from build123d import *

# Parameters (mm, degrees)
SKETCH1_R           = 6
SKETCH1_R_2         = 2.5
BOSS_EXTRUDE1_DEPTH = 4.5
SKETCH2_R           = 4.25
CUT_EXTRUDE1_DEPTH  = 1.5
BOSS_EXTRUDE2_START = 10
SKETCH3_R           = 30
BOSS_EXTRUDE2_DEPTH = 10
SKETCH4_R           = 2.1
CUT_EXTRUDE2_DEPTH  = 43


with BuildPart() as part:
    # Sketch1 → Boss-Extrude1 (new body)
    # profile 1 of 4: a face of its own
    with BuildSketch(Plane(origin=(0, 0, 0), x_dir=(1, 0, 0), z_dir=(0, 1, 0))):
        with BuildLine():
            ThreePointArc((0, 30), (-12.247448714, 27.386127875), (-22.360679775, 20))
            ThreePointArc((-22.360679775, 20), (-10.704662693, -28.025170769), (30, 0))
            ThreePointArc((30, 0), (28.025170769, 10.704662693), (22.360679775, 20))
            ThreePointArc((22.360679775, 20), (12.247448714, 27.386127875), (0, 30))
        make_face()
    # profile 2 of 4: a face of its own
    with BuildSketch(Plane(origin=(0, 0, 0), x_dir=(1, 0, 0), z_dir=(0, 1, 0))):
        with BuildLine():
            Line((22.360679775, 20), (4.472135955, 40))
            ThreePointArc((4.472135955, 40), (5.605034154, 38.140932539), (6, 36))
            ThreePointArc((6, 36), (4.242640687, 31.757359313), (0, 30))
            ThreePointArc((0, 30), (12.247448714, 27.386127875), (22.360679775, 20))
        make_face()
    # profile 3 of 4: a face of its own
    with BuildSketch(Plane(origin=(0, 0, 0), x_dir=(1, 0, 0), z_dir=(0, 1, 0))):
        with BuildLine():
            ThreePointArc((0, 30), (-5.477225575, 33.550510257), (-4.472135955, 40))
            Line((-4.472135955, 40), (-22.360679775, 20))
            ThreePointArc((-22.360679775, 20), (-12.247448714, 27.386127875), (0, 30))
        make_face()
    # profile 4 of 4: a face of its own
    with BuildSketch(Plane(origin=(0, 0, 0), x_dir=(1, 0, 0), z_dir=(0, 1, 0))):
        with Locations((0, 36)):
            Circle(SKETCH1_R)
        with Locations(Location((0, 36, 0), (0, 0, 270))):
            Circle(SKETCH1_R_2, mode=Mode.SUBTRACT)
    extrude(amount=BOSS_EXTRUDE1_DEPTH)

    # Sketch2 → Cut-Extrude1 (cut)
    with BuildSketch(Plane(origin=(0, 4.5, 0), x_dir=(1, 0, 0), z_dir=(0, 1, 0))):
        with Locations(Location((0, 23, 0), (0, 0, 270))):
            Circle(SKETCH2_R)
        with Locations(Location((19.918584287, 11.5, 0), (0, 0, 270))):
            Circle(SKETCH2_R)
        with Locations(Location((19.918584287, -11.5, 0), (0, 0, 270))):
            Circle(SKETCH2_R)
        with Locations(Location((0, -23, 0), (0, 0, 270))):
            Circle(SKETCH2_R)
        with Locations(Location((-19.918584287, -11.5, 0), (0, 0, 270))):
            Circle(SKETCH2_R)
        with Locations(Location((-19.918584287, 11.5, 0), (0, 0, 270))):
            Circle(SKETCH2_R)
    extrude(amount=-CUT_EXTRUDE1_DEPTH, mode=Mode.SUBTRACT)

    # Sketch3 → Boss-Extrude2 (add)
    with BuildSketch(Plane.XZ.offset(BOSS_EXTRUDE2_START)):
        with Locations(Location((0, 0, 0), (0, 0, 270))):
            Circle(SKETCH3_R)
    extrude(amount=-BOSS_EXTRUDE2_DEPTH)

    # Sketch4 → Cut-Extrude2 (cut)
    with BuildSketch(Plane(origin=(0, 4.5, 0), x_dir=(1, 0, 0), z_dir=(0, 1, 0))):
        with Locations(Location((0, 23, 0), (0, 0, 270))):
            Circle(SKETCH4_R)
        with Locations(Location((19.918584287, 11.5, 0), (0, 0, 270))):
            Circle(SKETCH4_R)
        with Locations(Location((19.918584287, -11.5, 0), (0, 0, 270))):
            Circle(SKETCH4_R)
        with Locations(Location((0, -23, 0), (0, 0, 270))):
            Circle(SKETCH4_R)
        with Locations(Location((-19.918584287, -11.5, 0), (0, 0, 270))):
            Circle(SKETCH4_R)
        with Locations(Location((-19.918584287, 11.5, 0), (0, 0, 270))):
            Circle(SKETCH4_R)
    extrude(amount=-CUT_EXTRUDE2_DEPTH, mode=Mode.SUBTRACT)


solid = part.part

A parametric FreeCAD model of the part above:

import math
import FreeCAD as App
import Part
import Sketcher

V = App.Vector

doc = App.newDocument("Part")
params = doc.addObject("Spreadsheet::Sheet", "Params")
for row, (alias, value) in enumerate([
    ("sketch1_diameter", "5 mm"),
    ("sketch1_radius", "30 mm"),
    ("sketch1_radius2", "6 mm"),
    ("pad1_length", "4.5 mm"),
    ("sketch2_diameter", "8.5 mm"),
    ("pocket1_length", "1.5 mm"),
    ("sketch3_diameter", "60 mm"),
    ("pad2_length", "10 mm"),
    ("sketch4_diameter", "4.2 mm"),
    ("pocket2_length", "43 mm"),
], start=1):
    params.set(f"A{row}", alias)
    params.set(f"B{row}", "=" + value)
    params.setAlias(f"B{row}", alias)

body = doc.addObject("PartDesign::Body", "Body")

# Sketch on XZ plane
sketch1 = body.newObject("Sketcher::SketchObject", "Sketch")
sketch1.AttachmentSupport = (doc.getObject("XZ_Plane"), [""])
sketch1.MapMode = "FlatFace"
sketch1.addGeometry([
    Part.ArcOfCircle(Part.Circle(V(0, 0, 0), V(0, 0, 1), 30), math.radians(0), math.radians(221.810315)),  # 0
    Part.ArcOfCircle(Part.Circle(V(0, 0, 0), V(0, 0, 1), 30), math.radians(-41.810315), math.radians(0)),  # 1
    Part.LineSegment(V(22.36068, -20, 0), V(4.472136, -40, 0)),  # 2
    Part.ArcOfCircle(Part.Circle(V(0, -36, 0), V(0, 0, 1), 6), math.radians(-138.189685), math.radians(-41.810315)),  # 3
    Part.LineSegment(V(-4.472136, -40, 0), V(-22.36068, -20, 0)),  # 4
    Part.Circle(V(0, -36, 0), V(0, 0, 1), 2.5),  # 5
], False)
sketch1.addConstraint([
    Sketcher.Constraint("Tangent", 0, 1, 1, 2),
    Sketcher.Constraint("Tangent", 1, 1, 2, 1),
    Sketcher.Constraint("Tangent", 2, 2, 3, 2),
    Sketcher.Constraint("Tangent", 3, 1, 4, 1),
    Sketcher.Constraint("Tangent", 4, 2, 0, 2),
    Sketcher.Constraint("Coincident", 0, 3, -1, 1),
    Sketcher.Constraint("Coincident", 5, 3, 3, 3),
    Sketcher.Constraint("Equal", 0, 1),
    Sketcher.Constraint("PointOnObject", 3, 3, -2),
    Sketcher.Constraint("PointOnObject", 0, 1, -1),
    Sketcher.Constraint("Diameter", 5, 5.0),
    Sketcher.Constraint("Radius", 0, 30.0),
    Sketcher.Constraint("Radius", 3, 6.0),
    Sketcher.Constraint("DistanceY", 3, 3, -1, 1, 36.0),
])
sketch1.setExpression("Constraints[10]", "Params.sketch1_diameter")
sketch1.setExpression("Constraints[11]", "Params.sketch1_radius")
sketch1.setExpression("Constraints[12]", "Params.sketch1_radius2")
pad1 = body.newObject("PartDesign::Pad", "Pad")
pad1.Profile = sketch1
pad1.setExpression("Length", "Params.pad1_length")
pad1.Reversed = True

# Sketch on XZ plane
sketch2 = body.newObject("Sketcher::SketchObject", "Sketch001")
sketch2.AttachmentSupport = (doc.getObject("XZ_Plane"), [""])
sketch2.MapMode = "FlatFace"
sketch2.AttachmentOffset = App.Placement(V(0, 0, -4.5), App.Rotation())
sketch2.addGeometry([
    Part.Circle(V(0, -23, 0), V(0, 0, 1), 4.25),  # 0
    Part.Circle(V(19.918584, -11.5, 0), V(0, 0, 1), 4.25),  # 1
    Part.Circle(V(19.918584, 11.5, 0), V(0, 0, 1), 4.25),  # 2
    Part.Circle(V(0, 23, 0), V(0, 0, 1), 4.25),  # 3
    Part.Circle(V(-19.918584, 11.5, 0), V(0, 0, 1), 4.25),  # 4
    Part.Circle(V(-19.918584, -11.5, 0), V(0, 0, 1), 4.25),  # 5
], False)
sketch2.addConstraint([
    Sketcher.Constraint("Equal", 0, 1),
    Sketcher.Constraint("Equal", 1, 2),
    Sketcher.Constraint("Equal", 2, 3),
    Sketcher.Constraint("Equal", 3, 4),
    Sketcher.Constraint("Equal", 4, 5),
    Sketcher.Constraint("Symmetric", 0, 3, 3, 3, -1, 1),
    Sketcher.Constraint("Symmetric", 1, 3, 4, 3, -1, 1),
    Sketcher.Constraint("Symmetric", 2, 3, 5, 3, -1, 1),
    Sketcher.Constraint("Symmetric", 2, 3, 4, 3, -2),
    Sketcher.Constraint("PointOnObject", 0, 3, -2),
    Sketcher.Constraint("Diameter", 0, 8.5),
    Sketcher.Constraint("DistanceY", 0, 3, -1, 1, 23.0),
    Sketcher.Constraint("DistanceY", 1, 3, 2, 3, 23.0),
    Sketcher.Constraint("DistanceX", 4, 3, 2, 3, 39.837169),
])
sketch2.setExpression("Constraints[10]", "Params.sketch2_diameter")
pocket1 = body.newObject("PartDesign::Pocket", "Pocket")
pocket1.Profile = sketch2
pocket1.setExpression("Length", "Params.pocket1_length")
pocket1.Reversed = True

# Sketch on XZ plane
sketch3 = body.newObject("Sketcher::SketchObject", "Sketch002")
sketch3.AttachmentSupport = (doc.getObject("XZ_Plane"), [""])
sketch3.MapMode = "FlatFace"
sketch3.AttachmentOffset = App.Placement(V(0, 0, 10), App.Rotation())
sketch3.addGeometry(Part.Circle(V(0, 0, 0), V(0, 0, 1), 30), False)
sketch3.addConstraint([
    Sketcher.Constraint("Coincident", 0, 3, -1, 1),
    Sketcher.Constraint("Diameter", 0, 60.0),
])
sketch3.setExpression("Constraints[1]", "Params.sketch3_diameter")
pad2 = body.newObject("PartDesign::Pad", "Pad001")
pad2.Profile = sketch3
pad2.setExpression("Length", "Params.pad2_length")
pad2.Reversed = True

# Sketch on XZ plane
sketch4 = body.newObject("Sketcher::SketchObject", "Sketch003")
sketch4.AttachmentSupport = (doc.getObject("XZ_Plane"), [""])
sketch4.MapMode = "FlatFace"
sketch4.AttachmentOffset = App.Placement(V(0, 0, -4.5), App.Rotation())
sketch4.addGeometry([
    Part.Circle(V(0, -23, 0), V(0, 0, 1), 2.1),  # 0
    Part.Circle(V(19.918584, -11.5, 0), V(0, 0, 1), 2.1),  # 1
    Part.Circle(V(19.918584, 11.5, 0), V(0, 0, 1), 2.1),  # 2
    Part.Circle(V(0, 23, 0), V(0, 0, 1), 2.1),  # 3
    Part.Circle(V(-19.918584, 11.5, 0), V(0, 0, 1), 2.1),  # 4
    Part.Circle(V(-19.918584, -11.5, 0), V(0, 0, 1), 2.1),  # 5
], False)
sketch4.addConstraint([
    Sketcher.Constraint("Equal", 0, 1),
    Sketcher.Constraint("Equal", 1, 2),
    Sketcher.Constraint("Equal", 2, 3),
    Sketcher.Constraint("Equal", 3, 4),
    Sketcher.Constraint("Equal", 4, 5),
    Sketcher.Constraint("Symmetric", 0, 3, 3, 3, -1, 1),
    Sketcher.Constraint("Symmetric", 1, 3, 4, 3, -1, 1),
    Sketcher.Constraint("Symmetric", 2, 3, 5, 3, -1, 1),
    Sketcher.Constraint("Symmetric", 2, 3, 4, 3, -2),
    Sketcher.Constraint("PointOnObject", 0, 3, -2),
    Sketcher.Constraint("Diameter", 0, 4.2),
    Sketcher.Constraint("DistanceY", 0, 3, -1, 1, 23.0),
    Sketcher.Constraint("DistanceY", 1, 3, 2, 3, 23.0),
    Sketcher.Constraint("DistanceX", 4, 3, 2, 3, 39.837169),
])
sketch4.setExpression("Constraints[10]", "Params.sketch4_diameter")
pocket2 = body.newObject("PartDesign::Pocket", "Pocket001")
pocket2.Profile = sketch4
pocket2.setExpression("Length", "Params.pocket2_length")
pocket2.Reversed = True

doc.recompute()
